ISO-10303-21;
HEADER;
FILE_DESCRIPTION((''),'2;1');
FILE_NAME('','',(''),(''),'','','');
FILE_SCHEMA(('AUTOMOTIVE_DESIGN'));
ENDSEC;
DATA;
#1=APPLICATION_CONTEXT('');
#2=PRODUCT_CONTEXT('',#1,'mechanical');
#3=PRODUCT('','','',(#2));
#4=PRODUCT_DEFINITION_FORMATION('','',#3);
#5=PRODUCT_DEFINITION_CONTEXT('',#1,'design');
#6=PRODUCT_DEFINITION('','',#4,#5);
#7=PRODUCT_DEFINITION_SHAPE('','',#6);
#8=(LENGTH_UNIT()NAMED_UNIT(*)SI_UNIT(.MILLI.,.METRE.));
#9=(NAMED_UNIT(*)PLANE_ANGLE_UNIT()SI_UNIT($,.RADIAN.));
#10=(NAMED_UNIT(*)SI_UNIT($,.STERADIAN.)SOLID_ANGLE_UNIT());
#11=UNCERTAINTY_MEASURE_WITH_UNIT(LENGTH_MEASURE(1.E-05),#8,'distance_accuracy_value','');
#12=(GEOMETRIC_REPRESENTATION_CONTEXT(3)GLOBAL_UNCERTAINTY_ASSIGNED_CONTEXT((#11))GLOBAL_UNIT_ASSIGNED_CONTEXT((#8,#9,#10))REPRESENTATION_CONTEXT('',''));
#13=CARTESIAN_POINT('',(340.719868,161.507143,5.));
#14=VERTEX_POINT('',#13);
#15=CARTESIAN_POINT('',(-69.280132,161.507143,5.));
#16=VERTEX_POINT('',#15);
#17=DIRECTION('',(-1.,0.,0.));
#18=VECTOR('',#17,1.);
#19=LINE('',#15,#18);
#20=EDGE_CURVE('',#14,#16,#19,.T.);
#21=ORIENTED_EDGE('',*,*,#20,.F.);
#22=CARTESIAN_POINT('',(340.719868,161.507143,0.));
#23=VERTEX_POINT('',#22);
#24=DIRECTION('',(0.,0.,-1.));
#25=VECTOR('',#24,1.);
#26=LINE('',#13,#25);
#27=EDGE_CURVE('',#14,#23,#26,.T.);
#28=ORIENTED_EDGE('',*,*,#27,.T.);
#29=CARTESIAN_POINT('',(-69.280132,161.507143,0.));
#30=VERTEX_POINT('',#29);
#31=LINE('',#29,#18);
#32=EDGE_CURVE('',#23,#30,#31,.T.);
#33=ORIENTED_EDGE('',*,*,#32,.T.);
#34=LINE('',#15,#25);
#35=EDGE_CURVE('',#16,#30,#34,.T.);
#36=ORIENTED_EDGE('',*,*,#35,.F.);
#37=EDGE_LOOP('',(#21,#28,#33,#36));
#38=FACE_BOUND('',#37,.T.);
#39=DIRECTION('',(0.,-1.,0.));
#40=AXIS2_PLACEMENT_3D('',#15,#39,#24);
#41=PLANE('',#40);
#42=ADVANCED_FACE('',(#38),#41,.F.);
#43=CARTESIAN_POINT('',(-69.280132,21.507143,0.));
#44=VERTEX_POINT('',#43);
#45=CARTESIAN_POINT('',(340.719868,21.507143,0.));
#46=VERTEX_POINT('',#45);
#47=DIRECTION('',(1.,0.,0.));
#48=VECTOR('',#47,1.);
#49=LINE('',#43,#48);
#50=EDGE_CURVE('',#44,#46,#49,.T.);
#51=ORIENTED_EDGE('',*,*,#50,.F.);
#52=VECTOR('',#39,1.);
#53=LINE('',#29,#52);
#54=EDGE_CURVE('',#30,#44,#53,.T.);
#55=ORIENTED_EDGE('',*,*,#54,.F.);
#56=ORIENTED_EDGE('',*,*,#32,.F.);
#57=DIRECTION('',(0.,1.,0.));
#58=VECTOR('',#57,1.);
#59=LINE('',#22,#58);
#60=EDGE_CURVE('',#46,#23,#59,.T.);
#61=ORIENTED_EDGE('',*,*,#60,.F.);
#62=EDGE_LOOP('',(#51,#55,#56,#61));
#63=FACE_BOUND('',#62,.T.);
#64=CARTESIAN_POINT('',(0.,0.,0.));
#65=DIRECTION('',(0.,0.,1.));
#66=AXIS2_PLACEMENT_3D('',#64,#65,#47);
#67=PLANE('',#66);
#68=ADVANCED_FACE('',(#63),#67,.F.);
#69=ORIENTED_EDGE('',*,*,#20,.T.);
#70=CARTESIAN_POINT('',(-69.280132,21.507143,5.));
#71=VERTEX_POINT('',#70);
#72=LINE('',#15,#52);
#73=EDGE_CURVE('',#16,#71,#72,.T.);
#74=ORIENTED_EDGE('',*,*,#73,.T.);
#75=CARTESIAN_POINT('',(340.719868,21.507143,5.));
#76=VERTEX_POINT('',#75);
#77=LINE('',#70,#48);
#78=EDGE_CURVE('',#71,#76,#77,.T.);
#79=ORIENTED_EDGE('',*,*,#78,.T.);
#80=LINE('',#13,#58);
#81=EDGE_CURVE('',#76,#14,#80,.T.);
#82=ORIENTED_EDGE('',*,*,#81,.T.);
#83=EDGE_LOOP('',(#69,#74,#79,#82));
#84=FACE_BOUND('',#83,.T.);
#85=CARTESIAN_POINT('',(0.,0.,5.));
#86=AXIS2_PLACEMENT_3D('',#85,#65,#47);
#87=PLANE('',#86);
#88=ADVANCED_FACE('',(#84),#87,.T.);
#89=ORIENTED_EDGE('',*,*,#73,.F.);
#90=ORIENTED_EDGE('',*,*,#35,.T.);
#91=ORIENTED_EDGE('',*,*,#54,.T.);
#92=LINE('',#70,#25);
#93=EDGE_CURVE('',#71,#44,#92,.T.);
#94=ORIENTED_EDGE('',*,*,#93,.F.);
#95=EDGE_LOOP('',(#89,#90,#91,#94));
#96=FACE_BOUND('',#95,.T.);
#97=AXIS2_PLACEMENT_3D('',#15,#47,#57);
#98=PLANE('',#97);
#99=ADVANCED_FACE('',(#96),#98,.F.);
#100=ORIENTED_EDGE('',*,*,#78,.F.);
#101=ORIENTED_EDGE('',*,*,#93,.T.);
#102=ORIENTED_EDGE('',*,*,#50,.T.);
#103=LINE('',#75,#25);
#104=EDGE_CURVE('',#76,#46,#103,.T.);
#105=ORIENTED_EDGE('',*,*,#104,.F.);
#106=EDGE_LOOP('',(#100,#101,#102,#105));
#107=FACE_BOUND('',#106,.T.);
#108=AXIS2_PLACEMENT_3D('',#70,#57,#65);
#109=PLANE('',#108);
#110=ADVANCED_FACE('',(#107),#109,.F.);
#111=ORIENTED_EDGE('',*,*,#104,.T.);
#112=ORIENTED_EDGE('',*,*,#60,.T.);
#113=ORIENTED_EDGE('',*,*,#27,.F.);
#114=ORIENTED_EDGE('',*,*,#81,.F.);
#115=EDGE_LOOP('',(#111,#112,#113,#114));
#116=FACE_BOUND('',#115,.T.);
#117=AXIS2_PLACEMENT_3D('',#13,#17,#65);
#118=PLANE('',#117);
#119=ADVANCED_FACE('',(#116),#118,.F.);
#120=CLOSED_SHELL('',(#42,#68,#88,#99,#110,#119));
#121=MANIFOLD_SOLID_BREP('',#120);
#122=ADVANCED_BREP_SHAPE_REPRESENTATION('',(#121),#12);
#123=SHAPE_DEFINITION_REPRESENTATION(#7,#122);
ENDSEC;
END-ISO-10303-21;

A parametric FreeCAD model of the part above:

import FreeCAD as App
import Part
import Sketcher

V = App.Vector
Q = App.Units.Quantity

doc = App.newDocument("Part")
body = doc.addObject("PartDesign::Body", "Body")

# Sketch on XY plane
sketch1 = doc.addObject("Sketcher::SketchObject", "Sketch")
body.addObject(sketch1)
sketch1.AttachmentSupport = (doc.XY_Plane, [""])
sketch1.MapMode = "FlatFace"
sketch1.addGeometry([
    Part.LineSegment(V(-69, 162, 0), V(-69, 22, 0)),
    Part.LineSegment(V(-69, 22, 0), V(341, 22, 0)),
    Part.LineSegment(V(341, 22, 0), V(341, 162, 0)),
    Part.LineSegment(V(341, 162, 0), V(-69, 162, 0)),
], False)
sketch1.addConstraint([
    Sketcher.Constraint("Coincident", 0, 2, 1, 1),
    Sketcher.Constraint("Coincident", 1, 2, 2, 1),
    Sketcher.Constraint("Coincident", 2, 2, 3, 1),
    Sketcher.Constraint("Coincident", 3, 2, 0, 1),
    Sketcher.Constraint("Vertical", 0),
    Sketcher.Constraint("Horizontal", 1),
    Sketcher.Constraint("Vertical", 2),
    Sketcher.Constraint("Horizontal", 3),
    Sketcher.Constraint("DistanceX", 1, 1, 1, 2, Q("410 mm")),
    Sketcher.Constraint("DistanceY", 0, 2, 0, 1, Q("140 mm")),
    Sketcher.Constraint("DistanceX", 0, 2, -1, 1, Q("69.280132 mm")),
    Sketcher.Constraint("DistanceY", -1, 1, 0, 2, Q("21.507143 mm")),
])
pad1 = doc.addObject("PartDesign::Pad", "Pad")
body.addObject(pad1)
pad1.Profile = sketch1
pad1.Length = 5

doc.recompute()
